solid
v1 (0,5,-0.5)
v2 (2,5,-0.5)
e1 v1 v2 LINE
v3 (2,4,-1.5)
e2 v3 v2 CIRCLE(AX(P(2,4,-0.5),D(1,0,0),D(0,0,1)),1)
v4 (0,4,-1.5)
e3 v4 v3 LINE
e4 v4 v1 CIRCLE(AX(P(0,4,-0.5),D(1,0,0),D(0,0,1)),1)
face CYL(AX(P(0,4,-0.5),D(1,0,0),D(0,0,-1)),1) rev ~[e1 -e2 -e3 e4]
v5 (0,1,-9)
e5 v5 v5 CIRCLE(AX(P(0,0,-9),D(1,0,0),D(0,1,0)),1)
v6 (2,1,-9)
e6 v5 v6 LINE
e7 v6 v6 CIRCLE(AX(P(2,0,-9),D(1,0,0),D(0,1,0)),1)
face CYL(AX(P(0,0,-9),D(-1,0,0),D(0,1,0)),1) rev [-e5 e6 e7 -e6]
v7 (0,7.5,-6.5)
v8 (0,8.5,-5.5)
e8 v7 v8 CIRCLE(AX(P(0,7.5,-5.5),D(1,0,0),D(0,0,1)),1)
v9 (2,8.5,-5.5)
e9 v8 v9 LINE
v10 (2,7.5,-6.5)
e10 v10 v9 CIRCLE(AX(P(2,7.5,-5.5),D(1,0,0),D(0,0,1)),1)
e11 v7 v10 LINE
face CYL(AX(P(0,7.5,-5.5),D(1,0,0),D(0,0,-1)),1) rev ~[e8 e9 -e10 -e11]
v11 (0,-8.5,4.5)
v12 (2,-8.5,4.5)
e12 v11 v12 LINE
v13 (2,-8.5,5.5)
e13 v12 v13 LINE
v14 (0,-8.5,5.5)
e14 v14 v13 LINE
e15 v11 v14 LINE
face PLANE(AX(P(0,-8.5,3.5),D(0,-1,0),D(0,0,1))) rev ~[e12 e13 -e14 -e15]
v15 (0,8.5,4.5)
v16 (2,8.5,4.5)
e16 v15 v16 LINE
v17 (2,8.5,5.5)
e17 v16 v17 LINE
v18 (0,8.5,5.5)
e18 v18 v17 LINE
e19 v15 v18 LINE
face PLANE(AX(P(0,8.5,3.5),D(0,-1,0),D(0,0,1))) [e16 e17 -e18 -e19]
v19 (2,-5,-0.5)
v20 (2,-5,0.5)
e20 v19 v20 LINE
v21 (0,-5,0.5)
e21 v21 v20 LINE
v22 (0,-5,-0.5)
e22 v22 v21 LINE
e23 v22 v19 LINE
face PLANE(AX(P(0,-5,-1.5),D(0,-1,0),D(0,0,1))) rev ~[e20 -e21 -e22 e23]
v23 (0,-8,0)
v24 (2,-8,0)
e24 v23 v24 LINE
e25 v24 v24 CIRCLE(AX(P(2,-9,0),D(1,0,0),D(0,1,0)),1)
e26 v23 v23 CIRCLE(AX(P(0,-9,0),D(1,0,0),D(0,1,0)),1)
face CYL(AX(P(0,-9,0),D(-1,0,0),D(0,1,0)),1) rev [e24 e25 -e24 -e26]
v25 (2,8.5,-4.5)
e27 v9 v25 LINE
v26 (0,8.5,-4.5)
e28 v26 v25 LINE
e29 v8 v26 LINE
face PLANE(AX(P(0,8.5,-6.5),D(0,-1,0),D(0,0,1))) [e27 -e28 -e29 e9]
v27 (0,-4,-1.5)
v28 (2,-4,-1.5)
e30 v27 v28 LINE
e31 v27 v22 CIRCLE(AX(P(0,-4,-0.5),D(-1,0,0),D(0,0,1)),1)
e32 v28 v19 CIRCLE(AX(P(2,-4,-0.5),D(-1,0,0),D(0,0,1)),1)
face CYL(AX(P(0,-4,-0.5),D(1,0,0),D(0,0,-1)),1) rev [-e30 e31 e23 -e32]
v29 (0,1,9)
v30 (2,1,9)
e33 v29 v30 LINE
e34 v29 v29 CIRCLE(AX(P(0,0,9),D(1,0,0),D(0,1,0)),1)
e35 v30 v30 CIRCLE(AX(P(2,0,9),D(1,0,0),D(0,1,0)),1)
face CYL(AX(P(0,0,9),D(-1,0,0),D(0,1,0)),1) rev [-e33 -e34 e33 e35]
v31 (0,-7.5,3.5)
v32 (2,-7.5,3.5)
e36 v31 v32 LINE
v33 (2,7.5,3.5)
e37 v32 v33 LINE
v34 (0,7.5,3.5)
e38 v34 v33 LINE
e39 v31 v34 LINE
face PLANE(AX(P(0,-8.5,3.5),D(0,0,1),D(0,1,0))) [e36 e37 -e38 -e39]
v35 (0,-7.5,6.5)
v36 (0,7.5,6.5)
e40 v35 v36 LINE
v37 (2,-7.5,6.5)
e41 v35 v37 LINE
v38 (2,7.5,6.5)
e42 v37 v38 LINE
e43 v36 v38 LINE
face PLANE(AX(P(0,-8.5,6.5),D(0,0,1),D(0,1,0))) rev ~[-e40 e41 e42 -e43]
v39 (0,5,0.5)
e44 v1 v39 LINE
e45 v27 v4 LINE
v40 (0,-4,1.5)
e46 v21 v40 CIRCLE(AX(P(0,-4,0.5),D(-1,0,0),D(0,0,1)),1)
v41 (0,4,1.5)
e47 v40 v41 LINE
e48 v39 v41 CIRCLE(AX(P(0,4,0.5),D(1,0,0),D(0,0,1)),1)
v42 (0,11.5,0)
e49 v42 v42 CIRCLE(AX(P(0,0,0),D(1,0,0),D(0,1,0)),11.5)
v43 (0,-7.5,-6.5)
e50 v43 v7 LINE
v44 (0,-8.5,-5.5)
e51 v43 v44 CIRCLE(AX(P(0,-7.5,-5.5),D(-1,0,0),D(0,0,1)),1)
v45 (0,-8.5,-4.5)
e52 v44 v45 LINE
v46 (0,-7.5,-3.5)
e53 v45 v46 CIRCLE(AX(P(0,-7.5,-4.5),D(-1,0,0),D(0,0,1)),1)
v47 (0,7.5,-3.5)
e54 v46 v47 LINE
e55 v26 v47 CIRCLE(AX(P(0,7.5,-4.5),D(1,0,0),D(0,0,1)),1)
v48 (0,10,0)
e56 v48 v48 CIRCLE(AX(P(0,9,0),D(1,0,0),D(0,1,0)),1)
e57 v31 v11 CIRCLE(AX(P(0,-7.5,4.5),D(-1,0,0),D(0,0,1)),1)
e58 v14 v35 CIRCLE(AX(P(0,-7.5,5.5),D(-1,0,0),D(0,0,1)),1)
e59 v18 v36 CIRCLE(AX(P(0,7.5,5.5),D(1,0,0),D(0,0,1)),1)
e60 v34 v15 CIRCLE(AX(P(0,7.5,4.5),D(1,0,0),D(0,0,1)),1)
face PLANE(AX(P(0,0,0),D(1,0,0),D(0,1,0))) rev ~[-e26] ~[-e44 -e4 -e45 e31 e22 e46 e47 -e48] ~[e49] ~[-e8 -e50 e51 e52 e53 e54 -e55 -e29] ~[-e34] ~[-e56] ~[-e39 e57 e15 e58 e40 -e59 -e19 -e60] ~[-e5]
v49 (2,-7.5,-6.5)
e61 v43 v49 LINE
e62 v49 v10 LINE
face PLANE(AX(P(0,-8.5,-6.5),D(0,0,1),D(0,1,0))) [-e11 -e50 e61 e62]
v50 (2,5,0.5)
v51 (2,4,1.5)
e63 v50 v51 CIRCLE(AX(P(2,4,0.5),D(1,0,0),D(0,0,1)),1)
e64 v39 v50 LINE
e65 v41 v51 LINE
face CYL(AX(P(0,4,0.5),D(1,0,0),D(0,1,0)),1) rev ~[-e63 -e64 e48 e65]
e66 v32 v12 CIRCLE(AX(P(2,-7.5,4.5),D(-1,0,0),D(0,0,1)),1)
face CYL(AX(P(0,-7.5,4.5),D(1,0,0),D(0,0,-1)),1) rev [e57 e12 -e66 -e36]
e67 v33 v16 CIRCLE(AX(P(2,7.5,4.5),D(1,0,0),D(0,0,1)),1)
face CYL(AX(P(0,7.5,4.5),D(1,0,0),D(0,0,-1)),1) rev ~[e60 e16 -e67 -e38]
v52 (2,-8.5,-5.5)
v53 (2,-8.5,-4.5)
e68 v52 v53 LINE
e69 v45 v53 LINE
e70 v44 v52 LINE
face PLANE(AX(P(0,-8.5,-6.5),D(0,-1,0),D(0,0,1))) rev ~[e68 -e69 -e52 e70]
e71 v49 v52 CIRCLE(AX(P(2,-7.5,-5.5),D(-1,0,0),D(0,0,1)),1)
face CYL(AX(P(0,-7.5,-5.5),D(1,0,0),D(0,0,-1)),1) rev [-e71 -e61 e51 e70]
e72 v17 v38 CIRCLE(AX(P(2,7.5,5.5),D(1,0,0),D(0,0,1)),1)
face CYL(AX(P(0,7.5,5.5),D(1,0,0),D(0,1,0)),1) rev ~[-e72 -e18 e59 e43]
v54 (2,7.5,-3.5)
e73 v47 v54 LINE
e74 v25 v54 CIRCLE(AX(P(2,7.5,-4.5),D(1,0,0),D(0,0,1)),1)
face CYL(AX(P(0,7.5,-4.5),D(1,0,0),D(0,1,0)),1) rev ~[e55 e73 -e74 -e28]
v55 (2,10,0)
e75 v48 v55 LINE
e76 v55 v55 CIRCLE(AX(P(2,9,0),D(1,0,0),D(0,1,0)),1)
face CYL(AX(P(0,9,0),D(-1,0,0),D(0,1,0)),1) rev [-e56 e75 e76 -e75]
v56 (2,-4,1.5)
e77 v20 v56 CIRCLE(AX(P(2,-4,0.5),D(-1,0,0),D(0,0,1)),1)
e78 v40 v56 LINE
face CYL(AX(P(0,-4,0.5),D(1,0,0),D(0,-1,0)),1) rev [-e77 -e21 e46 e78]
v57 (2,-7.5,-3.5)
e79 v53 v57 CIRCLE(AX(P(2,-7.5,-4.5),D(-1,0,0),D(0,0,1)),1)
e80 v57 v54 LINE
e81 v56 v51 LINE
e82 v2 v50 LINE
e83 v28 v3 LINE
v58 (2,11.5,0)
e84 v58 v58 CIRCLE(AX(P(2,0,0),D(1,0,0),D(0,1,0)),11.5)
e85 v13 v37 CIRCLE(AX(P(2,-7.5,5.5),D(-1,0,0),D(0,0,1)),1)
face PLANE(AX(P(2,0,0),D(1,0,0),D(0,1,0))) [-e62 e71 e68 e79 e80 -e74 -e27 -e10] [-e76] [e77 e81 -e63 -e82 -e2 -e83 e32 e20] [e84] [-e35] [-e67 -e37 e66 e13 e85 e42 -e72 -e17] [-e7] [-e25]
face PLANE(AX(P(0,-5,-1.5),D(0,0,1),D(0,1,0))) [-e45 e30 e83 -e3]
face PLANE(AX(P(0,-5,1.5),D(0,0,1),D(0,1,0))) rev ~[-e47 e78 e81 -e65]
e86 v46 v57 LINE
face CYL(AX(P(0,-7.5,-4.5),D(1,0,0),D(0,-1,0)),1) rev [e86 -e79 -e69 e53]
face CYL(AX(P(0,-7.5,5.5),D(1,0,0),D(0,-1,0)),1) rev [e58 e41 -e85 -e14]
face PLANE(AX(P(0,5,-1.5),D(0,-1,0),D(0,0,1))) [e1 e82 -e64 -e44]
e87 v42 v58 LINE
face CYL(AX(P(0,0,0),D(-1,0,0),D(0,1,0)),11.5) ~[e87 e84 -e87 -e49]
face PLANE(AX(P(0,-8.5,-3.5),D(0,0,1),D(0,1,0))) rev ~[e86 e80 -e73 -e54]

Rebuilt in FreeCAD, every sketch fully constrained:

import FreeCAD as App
import Part
import Sketcher
from FreeCAD import Vector
Q = App.Units.Quantity


def edges_at(feature, points):
    """Names of the edges that pass closest to the given points."""
    edges = feature.Shape.Edges
    near = lambda p: min(range(len(edges)), key=lambda i: edges[i].distToShape(Part.Vertex(*p))[0])
    return sorted({f"Edge{near(p) + 1}" for p in points})


def add_polygon(sketch, points):
    """Adds a closed chain of lines whose ends are joined by coincident constraints."""
    first, n = sketch.GeometryCount, len(points)
    for a, b in zip(points, points[1:] + points[:1]):
        sketch.addGeometry(Part.LineSegment(App.Vector(*a, 0), App.Vector(*b, 0)), False)
    for i in range(n):
        sketch.addConstraint(Sketcher.Constraint("Coincident", first + i, 2, first + (i + 1) % n, 1))

doc = App.newDocument("Part")
body = doc.addObject("PartDesign::Body", "Body")

sketch1 = doc.addObject("Sketcher::SketchObject", "Sketch")
body.addObject(sketch1)
sketch1.AttachmentSupport = (doc.YZ_Plane, [""])
sketch1.MapMode = "FlatFace"
sketch1.addGeometry(Part.Circle(Vector(0, 0, 0), Vector(0, 0, 1), 11.5), False)
sketch1.addGeometry(Part.Circle(Vector(0, -9, 0), Vector(0, 0, 1), 1), False)
add_polygon(sketch1, [(8.5, -6.5), (-8.5, -6.5), (-8.5, -3.5), (8.5, -3.5)])
sketch1.addGeometry(Part.Circle(Vector(-9, 0, 0), Vector(0, 0, 1), 1), False)
add_polygon(sketch1, [(5, -1.5), (-5, -1.5), (-5, 1.5), (5, 1.5)])
sketch1.addGeometry(Part.Circle(Vector(9, 0, 0), Vector(0, 0, 1), 1), False)
add_polygon(sketch1, [(8.5, 3.5), (-8.5, 3.5), (-8.5, 6.5), (8.5, 6.5)])
sketch1.addGeometry(Part.Circle(Vector(0, 9, 0), Vector(0, 0, 1), 1), False)
sketch1.addConstraint([
    Sketcher.Constraint("Horizontal", 2),
    Sketcher.Constraint("Vertical", 3),
    Sketcher.Constraint("Horizontal", 4),
    Sketcher.Constraint("Vertical", 5),
    Sketcher.Constraint("Horizontal", 7),
    Sketcher.Constraint("Vertical", 8),
    Sketcher.Constraint("Horizontal", 9),
    Sketcher.Constraint("Vertical", 10),
    Sketcher.Constraint("Horizontal", 12),
    Sketcher.Constraint("Vertical", 13),
    Sketcher.Constraint("Horizontal", 14),
    Sketcher.Constraint("Vertical", 15),
    Sketcher.Constraint("Coincident", 0, 3, -1, 1),
    Sketcher.Constraint("Equal", 1, 6),
    Sketcher.Constraint("Equal", 6, 11),
    Sketcher.Constraint("Equal", 11, 16),
    Sketcher.Constraint("Symmetric", 6, 3, 11, 3, -1, 1),
    Sketcher.Constraint("Symmetric", 1, 3, 16, 3, -1, 1),
    Sketcher.Constraint("Symmetric", 7, 2, 9, 2, -1, 1),
    Sketcher.Constraint("Symmetric", 4, 2, 12, 2, -1, 1),
    Sketcher.Constraint("Symmetric", 2, 2, 14, 2, -1, 1),
    Sketcher.Constraint("PointOnObject", 1, 3, -2),
    Sketcher.Constraint("PointOnObject", 6, 3, -1),
    Sketcher.Constraint("Vertical", 3, 2, 12, 2),
    Sketcher.Constraint("Equal", 5, 8),
    Sketcher.Constraint("Diameter", 0, Q("23 mm")),
    Sketcher.Constraint("Diameter", 1, Q("2 mm")),
    Sketcher.Constraint("DistanceX", 2, 2, 2, 1, Q("17 mm")),
    Sketcher.Constraint("DistanceX", 7, 2, 7, 1, Q("10 mm")),
    Sketcher.Constraint("DistanceY", 3, 1, 3, 2, Q("3 mm")),
    Sketcher.Constraint("DistanceY", 1, 3, -1, 1, Q("9 mm")),
    Sketcher.Constraint("DistanceX", 6, 3, -1, 1, Q("9 mm")),
    Sketcher.Constraint("DistanceY", 3, 2, 7, 2, Q("2 mm")),
])
pad1 = doc.addObject("PartDesign::Pad", "Pad")
body.addObject(pad1)
pad1.Profile = sketch1
pad1.Length = 2
doc.recompute()

fillet = doc.addObject("PartDesign::Fillet", "Fillet")
body.addObject(fillet)
fillet.Base = (pad1, edges_at(pad1, [
    (1, -8.5, 6.5),
    (1, -8.5, 3.5),
    (1, 8.5, 6.5),
    (1, 8.5, 3.5),
    (1, 5, -1.5),
    (1, -5, -1.5),
    (1, -8.5, -6.5),
    (1, 8.5, -6.5),
    (1, -5, 1.5),
    (1, -8.5, -3.5),
    (1, 8.5, -3.5),
    (1, 5, 1.5),
]))
fillet.Radius = 1

doc.recompute()
